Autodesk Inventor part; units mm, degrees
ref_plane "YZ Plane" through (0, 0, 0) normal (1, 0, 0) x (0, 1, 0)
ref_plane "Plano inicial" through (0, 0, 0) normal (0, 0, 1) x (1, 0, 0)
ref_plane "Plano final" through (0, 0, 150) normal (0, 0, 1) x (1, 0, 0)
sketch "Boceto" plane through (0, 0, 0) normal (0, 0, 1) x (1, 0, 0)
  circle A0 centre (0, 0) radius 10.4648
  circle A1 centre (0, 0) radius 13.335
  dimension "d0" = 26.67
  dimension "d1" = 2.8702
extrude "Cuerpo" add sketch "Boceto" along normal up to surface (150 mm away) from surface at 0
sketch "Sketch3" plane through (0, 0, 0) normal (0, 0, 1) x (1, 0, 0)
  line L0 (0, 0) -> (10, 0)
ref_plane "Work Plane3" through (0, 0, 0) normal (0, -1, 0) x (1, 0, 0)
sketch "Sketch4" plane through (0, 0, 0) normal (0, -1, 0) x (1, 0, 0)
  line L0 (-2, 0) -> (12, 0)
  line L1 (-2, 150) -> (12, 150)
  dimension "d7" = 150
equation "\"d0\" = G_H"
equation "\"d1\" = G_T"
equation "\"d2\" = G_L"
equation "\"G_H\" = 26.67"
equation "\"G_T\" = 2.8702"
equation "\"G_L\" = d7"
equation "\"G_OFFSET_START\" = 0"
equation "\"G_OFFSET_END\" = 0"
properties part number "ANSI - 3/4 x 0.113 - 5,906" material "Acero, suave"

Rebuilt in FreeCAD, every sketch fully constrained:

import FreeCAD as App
import Part
import Sketcher
Q = App.Units.Quantity

doc = App.newDocument("Part")
params = doc.addObject("Spreadsheet::Sheet", "Params")
for row, (alias, value) in enumerate([
    ("sketch1_diameter", "1.05 in"),
    ("sketch1_diameter2", "0.824 in"),
    ("pad1_length", "5.9055118 in"),
], start=1):
    params.set(f"A{row}", alias)
    params.set(f"B{row}", "=" + value)
    params.setAlias(f"B{row}", alias)

body = doc.addObject("PartDesign::Body", "Body")

sketch1 = body.newObject("Sketcher::SketchObject", "Sketch")
sketch1.AttachmentSupport = (doc.getObject("XY_Plane"), [""])
sketch1.MapMode = "FlatFace"
sketch1.addGeometry(Part.Circle(App.Vector(0, 0, 0), App.Vector(0, 0, 1), 13.335), False)
sketch1.addGeometry(Part.Circle(App.Vector(0, 0, 0), App.Vector(0, 0, 1), 10.4648), False)
sketch1.addConstraint(Sketcher.Constraint("Coincident", 0, 3, -1, 1))
sketch1.addConstraint(Sketcher.Constraint("Coincident", 1, 3, -1, 1))
sketch1.addConstraint(Sketcher.Constraint("Diameter", 0, Q("1.05 in")))
sketch1.addConstraint(Sketcher.Constraint("Diameter", 1, Q("0.824 in")))
sketch1.setExpression("Constraints[2]", "Params.sketch1_diameter")
sketch1.setExpression("Constraints[3]", "Params.sketch1_diameter2")
pad1 = body.newObject("PartDesign::Pad", "Pad")
pad1.Profile = sketch1
pad1.setExpression("Length", "Params.pad1_length")

doc.recompute()
